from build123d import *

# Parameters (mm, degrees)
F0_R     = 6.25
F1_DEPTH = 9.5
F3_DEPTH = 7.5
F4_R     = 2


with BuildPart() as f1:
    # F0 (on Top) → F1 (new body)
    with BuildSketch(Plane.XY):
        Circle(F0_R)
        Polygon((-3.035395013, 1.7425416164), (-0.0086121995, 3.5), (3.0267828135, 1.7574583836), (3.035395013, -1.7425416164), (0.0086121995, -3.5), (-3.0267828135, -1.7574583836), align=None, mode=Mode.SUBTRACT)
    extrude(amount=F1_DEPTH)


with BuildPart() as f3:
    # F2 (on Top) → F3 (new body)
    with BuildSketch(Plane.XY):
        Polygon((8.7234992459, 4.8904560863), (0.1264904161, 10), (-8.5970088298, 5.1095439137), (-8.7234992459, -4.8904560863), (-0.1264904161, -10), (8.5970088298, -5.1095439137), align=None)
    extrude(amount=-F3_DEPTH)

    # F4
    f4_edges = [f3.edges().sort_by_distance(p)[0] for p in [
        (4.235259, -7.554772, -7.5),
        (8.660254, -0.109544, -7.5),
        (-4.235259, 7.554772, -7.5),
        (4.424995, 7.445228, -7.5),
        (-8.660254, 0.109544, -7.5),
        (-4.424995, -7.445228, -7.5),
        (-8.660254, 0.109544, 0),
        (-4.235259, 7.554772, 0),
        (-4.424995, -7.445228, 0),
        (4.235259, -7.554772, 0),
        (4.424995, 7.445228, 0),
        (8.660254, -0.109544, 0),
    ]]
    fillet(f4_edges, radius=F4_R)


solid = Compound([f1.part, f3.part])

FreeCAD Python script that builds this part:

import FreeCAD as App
import Part
import Sketcher


def edges_at(feature, points):
    """Names of the edges that pass closest to the given points."""
    edges = feature.Shape.Edges
    near = lambda p: min(range(len(edges)), key=lambda i: edges[i].distToShape(Part.Vertex(*p))[0])
    return sorted({f"Edge{near(p) + 1}" for p in points})

doc = App.newDocument("Part")
body = doc.addObject("PartDesign::Body", "Body")

sketch1 = body.newObject("Sketcher::SketchObject", "Sketch")
sketch1.AttachmentSupport = (doc.getObject("XY_Plane"), [""])
sketch1.MapMode = "FlatFace"
sketch1.addGeometry(Part.Circle(App.Vector(0, 0, 0), App.Vector(0, 0, 1), 6.2), False)
sketch1.addGeometry(Part.LineSegment(App.Vector(-3, -1.8, 0), App.Vector(-3, 1.7, 0)), False)
sketch1.addGeometry(Part.LineSegment(App.Vector(-3, 1.7, 0), App.Vector(0, 3.5, 0)), False)
sketch1.addGeometry(Part.LineSegment(App.Vector(0, 3.5, 0), App.Vector(3, 1.8, 0)), False)
sketch1.addGeometry(Part.LineSegment(App.Vector(3, 1.8, 0), App.Vector(3, -1.7, 0)), False)
sketch1.addGeometry(Part.LineSegment(App.Vector(3, -1.7, 0), App.Vector(0, -3.5, 0)), False)
sketch1.addGeometry(Part.LineSegment(App.Vector(0, -3.5, 0), App.Vector(-3, -1.8, 0)), False)
sketch1.addConstraint(Sketcher.Constraint("Coincident", 1, 2, 2, 1))
sketch1.addConstraint(Sketcher.Constraint("Coincident", 2, 2, 3, 1))
sketch1.addConstraint(Sketcher.Constraint("Coincident", 3, 2, 4, 1))
sketch1.addConstraint(Sketcher.Constraint("Coincident", 4, 2, 5, 1))
sketch1.addConstraint(Sketcher.Constraint("Coincident", 5, 2, 6, 1))
sketch1.addConstraint(Sketcher.Constraint("Coincident", 6, 2, 1, 1))
sketch1.addConstraint(Sketcher.Constraint("Coincident", 0, 3, -1, 1))
sketch1.addConstraint(Sketcher.Constraint("Symmetric", 1, 2, 4, 2, -1, 1))
sketch1.addConstraint(Sketcher.Constraint("Symmetric", 2, 2, 5, 2, -1, 1))
sketch1.addConstraint(Sketcher.Constraint("Symmetric", 3, 2, 6, 2, -1, 1))
sketch1.addConstraint(Sketcher.Constraint("Equal", 1, 2))
sketch1.addConstraint(Sketcher.Constraint("Equal", 2, 3))
sketch1.addConstraint(Sketcher.Constraint("Diameter", 0, 12.5))
sketch1.addConstraint(Sketcher.Constraint("DistanceY", 5, 2, 2, 2, 7.0))
sketch1.addConstraint(Sketcher.Constraint("DistanceY", 4, 2, 3, 2, 3.5))
sketch1.addConstraint(Sketcher.Constraint("DistanceY", -1, 1, 1, 2, 1.742542))
sketch1.addConstraint(Sketcher.Constraint("DistanceX", 1, 2, 4, 2, 6.07079))
pad1 = body.newObject("PartDesign::Pad", "Pad")
pad1.Profile = sketch1
pad1.Length = 9.5
body2 = doc.addObject("PartDesign::Body", "Body001")

sketch2 = body2.newObject("Sketcher::SketchObject", "Sketch001")
sketch2.AttachmentSupport = (doc.getObject("XY_Plane001"), [""])
sketch2.MapMode = "FlatFace"
sketch2.addGeometry(Part.LineSegment(App.Vector(9, 5, 0), App.Vector(0, 10, 0)), False)
sketch2.addGeometry(Part.LineSegment(App.Vector(0, 10, 0), App.Vector(-9, 5, 0)), False)
sketch2.addGeometry(Part.LineSegment(App.Vector(-9, 5, 0), App.Vector(-9, -5, 0)), False)
sketch2.addGeometry(Part.LineSegment(App.Vector(-9, -5, 0), App.Vector(0, -10, 0)), False)
sketch2.addGeometry(Part.LineSegment(App.Vector(0, -10, 0), App.Vector(9, -5, 0)), False)
sketch2.addGeometry(Part.LineSegment(App.Vector(9, -5, 0), App.Vector(9, 5, 0)), False)
sketch2.addConstraint(Sketcher.Constraint("Coincident", 0, 2, 1, 1))
sketch2.addConstraint(Sketcher.Constraint("Coincident", 1, 2, 2, 1))
sketch2.addConstraint(Sketcher.Constraint("Coincident", 2, 2, 3, 1))
sketch2.addConstraint(Sketcher.Constraint("Coincident", 3, 2, 4, 1))
sketch2.addConstraint(Sketcher.Constraint("Coincident", 4, 2, 5, 1))
sketch2.addConstraint(Sketcher.Constraint("Coincident", 5, 2, 0, 1))
sketch2.addConstraint(Sketcher.Constraint("Symmetric", 0, 2, 3, 2, -1, 1))
sketch2.addConstraint(Sketcher.Constraint("Symmetric", 1, 2, 4, 2, -1, 1))
sketch2.addConstraint(Sketcher.Constraint("Symmetric", 2, 2, 5, 2, -1, 1))
sketch2.addConstraint(Sketcher.Constraint("Equal", 0, 1))
sketch2.addConstraint(Sketcher.Constraint("Equal", 1, 2))
sketch2.addConstraint(Sketcher.Constraint("DistanceY", -1, 1, 0, 2, 10.0))
sketch2.addConstraint(Sketcher.Constraint("DistanceY", 2, 2, 1, 2, 10.0))
sketch2.addConstraint(Sketcher.Constraint("DistanceX", 2, 2, 5, 2, 17.446998))
sketch2.addConstraint(Sketcher.Constraint("DistanceX", 1, 2, 0, 2, 8.723499))
pad2 = body2.newObject("PartDesign::Pad", "Pad001")
pad2.Profile = sketch2
pad2.Length = 7.5
pad2.Reversed = True
doc.recompute()

fillet = body2.newObject("PartDesign::Fillet", "Fillet")
fillet.Base = (pad2, edges_at(pad2, [
    (4.235, -7.555, -7.5),
    (8.66, -0.11, -7.5),
    (-4.235, 7.555, -7.5),
    (4.425, 7.445, -7.5),
    (-8.66, 0.11, -7.5),
    (-4.425, -7.445, -7.5),
    (-8.66, 0.11, 0),
    (-4.235, 7.555, 0),
    (-4.425, -7.445, 0),
    (4.235, -7.555, 0),
    (4.425, 7.445, 0),
    (8.66, -0.11, 0),
]))
fillet.Radius = 2

doc.recompute()
